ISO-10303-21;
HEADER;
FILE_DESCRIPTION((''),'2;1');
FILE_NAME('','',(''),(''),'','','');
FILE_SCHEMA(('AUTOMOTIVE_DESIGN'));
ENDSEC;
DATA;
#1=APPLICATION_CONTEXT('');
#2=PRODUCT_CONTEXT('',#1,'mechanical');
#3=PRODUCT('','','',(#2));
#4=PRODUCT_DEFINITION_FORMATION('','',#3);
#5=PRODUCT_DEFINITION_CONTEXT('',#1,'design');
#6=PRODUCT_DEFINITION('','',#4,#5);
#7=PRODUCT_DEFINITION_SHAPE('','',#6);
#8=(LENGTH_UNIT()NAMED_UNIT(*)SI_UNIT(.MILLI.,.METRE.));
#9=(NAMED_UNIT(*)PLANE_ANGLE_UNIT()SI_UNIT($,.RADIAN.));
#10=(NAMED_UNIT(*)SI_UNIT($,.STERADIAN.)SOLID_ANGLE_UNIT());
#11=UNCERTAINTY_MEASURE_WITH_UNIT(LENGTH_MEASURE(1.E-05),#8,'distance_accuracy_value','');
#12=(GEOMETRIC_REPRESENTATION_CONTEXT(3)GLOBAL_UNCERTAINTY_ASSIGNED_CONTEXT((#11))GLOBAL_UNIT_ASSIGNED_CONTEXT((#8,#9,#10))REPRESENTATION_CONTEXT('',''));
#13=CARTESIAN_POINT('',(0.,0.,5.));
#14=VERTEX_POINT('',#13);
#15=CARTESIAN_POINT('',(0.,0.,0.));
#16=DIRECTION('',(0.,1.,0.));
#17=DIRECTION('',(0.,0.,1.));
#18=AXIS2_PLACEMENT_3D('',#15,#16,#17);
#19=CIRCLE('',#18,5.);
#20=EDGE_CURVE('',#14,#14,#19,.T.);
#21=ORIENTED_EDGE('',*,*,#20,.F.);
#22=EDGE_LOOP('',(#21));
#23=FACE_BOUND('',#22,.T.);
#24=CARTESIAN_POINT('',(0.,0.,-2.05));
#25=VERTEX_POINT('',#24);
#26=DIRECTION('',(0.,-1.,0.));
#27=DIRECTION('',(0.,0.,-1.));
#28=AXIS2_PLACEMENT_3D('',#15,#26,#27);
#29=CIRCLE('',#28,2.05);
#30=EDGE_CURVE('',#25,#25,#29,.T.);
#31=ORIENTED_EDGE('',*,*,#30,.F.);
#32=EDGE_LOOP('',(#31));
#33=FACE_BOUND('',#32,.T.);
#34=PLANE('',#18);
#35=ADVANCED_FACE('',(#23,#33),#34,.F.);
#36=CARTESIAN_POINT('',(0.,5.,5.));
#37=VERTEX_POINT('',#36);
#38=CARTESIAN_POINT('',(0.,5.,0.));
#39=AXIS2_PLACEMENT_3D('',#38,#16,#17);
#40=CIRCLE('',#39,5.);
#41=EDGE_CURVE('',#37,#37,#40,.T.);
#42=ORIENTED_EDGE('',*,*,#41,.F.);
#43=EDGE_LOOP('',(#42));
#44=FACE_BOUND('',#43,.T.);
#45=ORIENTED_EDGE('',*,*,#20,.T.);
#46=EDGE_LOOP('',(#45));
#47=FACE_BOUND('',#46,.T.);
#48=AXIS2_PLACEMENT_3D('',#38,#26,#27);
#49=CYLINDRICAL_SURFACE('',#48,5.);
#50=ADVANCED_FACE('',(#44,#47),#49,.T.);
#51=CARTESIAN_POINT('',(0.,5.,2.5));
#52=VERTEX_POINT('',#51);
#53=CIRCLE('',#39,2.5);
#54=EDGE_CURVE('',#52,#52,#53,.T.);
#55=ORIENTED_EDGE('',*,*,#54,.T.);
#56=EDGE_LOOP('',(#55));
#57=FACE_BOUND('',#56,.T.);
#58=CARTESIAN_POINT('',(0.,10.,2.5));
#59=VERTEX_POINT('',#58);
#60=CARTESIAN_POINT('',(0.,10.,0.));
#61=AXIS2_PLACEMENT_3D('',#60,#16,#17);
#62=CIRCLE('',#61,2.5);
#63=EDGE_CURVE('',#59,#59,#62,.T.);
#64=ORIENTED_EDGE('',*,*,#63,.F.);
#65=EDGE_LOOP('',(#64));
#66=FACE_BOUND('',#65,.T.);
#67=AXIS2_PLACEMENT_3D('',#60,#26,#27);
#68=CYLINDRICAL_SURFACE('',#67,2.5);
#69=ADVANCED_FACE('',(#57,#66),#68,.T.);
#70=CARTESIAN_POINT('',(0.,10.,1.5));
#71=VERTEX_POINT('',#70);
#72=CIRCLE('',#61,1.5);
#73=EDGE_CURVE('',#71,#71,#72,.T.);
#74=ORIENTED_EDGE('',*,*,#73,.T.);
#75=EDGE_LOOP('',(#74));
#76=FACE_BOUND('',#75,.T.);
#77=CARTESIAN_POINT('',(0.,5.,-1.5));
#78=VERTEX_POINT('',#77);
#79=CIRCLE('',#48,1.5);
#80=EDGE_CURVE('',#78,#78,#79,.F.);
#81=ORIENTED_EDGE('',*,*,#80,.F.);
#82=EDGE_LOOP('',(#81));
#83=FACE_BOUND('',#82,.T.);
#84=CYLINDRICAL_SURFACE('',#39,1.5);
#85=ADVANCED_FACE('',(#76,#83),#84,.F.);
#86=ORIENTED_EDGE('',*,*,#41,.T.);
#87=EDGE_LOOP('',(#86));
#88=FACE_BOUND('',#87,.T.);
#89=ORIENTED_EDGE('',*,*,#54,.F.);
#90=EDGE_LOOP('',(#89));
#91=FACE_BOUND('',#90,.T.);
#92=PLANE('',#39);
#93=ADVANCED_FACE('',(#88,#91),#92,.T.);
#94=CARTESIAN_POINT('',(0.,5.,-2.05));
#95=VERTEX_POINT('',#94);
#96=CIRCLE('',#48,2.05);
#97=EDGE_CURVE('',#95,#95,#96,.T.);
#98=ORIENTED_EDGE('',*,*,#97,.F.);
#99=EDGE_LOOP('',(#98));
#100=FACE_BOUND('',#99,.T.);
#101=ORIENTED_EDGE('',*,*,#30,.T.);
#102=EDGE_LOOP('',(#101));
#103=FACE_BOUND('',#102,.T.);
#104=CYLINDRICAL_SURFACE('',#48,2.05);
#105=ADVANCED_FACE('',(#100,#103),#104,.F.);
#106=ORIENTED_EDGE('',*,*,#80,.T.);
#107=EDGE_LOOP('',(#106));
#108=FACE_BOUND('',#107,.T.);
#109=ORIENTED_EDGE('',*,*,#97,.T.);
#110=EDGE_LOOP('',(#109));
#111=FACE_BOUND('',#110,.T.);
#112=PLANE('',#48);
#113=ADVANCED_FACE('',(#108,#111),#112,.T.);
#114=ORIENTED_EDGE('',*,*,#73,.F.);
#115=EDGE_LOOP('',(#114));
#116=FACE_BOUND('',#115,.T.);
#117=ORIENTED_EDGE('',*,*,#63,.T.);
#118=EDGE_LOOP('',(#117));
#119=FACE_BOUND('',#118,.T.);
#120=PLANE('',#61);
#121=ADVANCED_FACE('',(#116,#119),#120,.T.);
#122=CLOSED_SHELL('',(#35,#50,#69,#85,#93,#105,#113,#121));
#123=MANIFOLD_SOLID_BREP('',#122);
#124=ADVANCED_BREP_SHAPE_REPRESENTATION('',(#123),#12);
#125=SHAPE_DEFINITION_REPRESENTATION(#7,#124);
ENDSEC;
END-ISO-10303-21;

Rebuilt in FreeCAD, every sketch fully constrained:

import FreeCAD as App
import Part
import Sketcher
from FreeCAD import Vector
Q = App.Units.Quantity

doc = App.newDocument("Part")
body = doc.addObject("PartDesign::Body", "Body")

# Sketch on XZ plane
sketch1 = doc.addObject("Sketcher::SketchObject", "Sketch")
body.addObject(sketch1)
sketch1.AttachmentSupport = (doc.XZ_Plane, [""])
sketch1.MapMode = "FlatFace"
sketch1.addGeometry(Part.Circle(Vector(0, 0, 0), Vector(0, 0, 1), 5), False)
sketch1.addConstraint([
    Sketcher.Constraint("Coincident", 0, 3, -1, 1),
    Sketcher.Constraint("Diameter", 0, Q("10 mm")),
])
pad1 = doc.addObject("PartDesign::Pad", "Pad")
body.addObject(pad1)
pad1.Profile = sketch1
pad1.Length = 5
pad1.Reversed = True

# Sketch on XZ plane
sketch2 = doc.addObject("Sketcher::SketchObject", "Sketch001")
body.addObject(sketch2)
sketch2.AttachmentSupport = (doc.XZ_Plane, [""])
sketch2.MapMode = "FlatFace"
sketch2.AttachmentOffset = App.Placement(Vector(0, 0, -5), App.Rotation())
sketch2.addGeometry(Part.Circle(Vector(0, 0, 0), Vector(0, 0, 1), 2.5), False)
sketch2.addConstraint([
    Sketcher.Constraint("Coincident", 0, 3, -1, 1),
    Sketcher.Constraint("Diameter", 0, Q("5 mm")),
])
pad2 = doc.addObject("PartDesign::Pad", "Pad001")
body.addObject(pad2)
pad2.Profile = sketch2
pad2.Length = 5
pad2.Reversed = True

# Sketch on XZ plane
sketch3 = doc.addObject("Sketcher::SketchObject", "Sketch002")
body.addObject(sketch3)
sketch3.AttachmentSupport = (doc.XZ_Plane, [""])
sketch3.MapMode = "FlatFace"
sketch3.AttachmentOffset = App.Placement(Vector(0, 0, -10), App.Rotation())
sketch3.addGeometry(Part.Circle(Vector(0, 0, 0), Vector(0, 0, 1), 1.5), False)
sketch3.addConstraint([
    Sketcher.Constraint("Coincident", 0, 3, -1, 1),
    Sketcher.Constraint("Diameter", 0, Q("3 mm")),
])
pocket1 = doc.addObject("PartDesign::Pocket", "Pocket")
body.addObject(pocket1)
pocket1.Profile = sketch3
pocket1.Length = 5
pocket1.Reversed = True

# Sketch on XZ plane
sketch4 = doc.addObject("Sketcher::SketchObject", "Sketch003")
body.addObject(sketch4)
sketch4.AttachmentSupport = (doc.XZ_Plane, [""])
sketch4.MapMode = "FlatFace"
sketch4.addGeometry(Part.Circle(Vector(0, 0, 0), Vector(0, 0, 1), 2), False)
sketch4.addConstraint([
    Sketcher.Constraint("Coincident", 0, 3, -1, 1),
    Sketcher.Constraint("Diameter", 0, Q("4.1 mm")),
])
pocket2 = doc.addObject("PartDesign::Pocket", "Pocket001")
body.addObject(pocket2)
pocket2.Profile = sketch4
pocket2.Length = 5

doc.recompute()
